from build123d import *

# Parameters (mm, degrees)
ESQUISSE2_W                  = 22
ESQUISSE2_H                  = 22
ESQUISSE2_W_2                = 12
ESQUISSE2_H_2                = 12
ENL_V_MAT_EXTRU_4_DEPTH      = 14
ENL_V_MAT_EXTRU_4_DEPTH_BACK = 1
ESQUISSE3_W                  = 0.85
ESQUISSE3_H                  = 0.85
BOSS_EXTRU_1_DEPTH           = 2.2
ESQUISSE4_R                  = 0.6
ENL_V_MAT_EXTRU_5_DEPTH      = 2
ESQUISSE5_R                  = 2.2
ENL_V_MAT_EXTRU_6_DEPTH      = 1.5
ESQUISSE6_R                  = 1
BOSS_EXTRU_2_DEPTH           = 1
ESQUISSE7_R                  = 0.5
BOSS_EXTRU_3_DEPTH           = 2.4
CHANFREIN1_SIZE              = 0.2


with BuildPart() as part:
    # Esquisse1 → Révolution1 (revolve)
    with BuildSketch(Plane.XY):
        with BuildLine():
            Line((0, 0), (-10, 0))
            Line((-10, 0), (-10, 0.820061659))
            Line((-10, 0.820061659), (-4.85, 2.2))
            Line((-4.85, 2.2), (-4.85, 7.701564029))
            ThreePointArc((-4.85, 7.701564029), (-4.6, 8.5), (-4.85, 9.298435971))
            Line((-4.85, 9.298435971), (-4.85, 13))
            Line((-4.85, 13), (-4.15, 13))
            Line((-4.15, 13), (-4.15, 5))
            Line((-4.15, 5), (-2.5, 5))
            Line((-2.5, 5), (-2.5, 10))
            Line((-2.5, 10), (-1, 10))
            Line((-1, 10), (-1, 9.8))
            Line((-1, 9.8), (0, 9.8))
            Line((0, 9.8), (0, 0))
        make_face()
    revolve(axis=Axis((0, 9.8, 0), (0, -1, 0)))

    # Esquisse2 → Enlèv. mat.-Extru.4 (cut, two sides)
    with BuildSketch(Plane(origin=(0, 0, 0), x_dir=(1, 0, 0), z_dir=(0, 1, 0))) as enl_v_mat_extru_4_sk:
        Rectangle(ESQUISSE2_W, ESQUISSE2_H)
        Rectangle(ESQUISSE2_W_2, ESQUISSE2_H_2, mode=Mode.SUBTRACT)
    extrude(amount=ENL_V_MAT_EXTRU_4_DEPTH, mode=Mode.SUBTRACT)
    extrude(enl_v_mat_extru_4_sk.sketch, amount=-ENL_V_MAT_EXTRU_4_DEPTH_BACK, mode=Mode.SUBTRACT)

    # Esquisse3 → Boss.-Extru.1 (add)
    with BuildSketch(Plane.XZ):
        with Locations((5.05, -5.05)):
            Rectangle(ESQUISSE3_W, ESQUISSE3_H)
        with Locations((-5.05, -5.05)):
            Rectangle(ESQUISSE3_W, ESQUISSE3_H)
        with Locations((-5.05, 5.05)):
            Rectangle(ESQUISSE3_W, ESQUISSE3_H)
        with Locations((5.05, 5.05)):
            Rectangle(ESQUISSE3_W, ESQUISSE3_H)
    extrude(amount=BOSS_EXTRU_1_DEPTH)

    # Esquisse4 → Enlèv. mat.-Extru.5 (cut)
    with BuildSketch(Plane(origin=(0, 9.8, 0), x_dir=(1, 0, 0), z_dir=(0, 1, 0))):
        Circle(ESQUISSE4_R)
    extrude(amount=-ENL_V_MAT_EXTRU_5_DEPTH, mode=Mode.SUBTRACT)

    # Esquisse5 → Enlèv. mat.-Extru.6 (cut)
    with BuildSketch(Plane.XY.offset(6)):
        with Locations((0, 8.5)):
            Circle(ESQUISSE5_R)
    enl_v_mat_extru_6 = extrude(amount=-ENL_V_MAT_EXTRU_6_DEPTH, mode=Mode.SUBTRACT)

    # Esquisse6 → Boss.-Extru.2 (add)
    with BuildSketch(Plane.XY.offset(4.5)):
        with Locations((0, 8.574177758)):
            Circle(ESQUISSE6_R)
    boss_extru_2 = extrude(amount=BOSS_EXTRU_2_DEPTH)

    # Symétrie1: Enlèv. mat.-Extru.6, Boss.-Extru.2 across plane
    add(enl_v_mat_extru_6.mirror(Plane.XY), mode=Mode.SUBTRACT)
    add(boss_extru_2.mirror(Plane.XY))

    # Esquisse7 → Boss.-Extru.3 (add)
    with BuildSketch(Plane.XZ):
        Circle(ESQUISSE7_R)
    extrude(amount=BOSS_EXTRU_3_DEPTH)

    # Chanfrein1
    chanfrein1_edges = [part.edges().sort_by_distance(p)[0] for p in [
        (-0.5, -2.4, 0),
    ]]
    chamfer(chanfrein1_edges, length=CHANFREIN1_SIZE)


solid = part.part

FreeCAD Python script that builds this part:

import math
import FreeCAD as App
import Part
import Sketcher
from FreeCAD import Vector
Q = App.Units.Quantity


def edges_at(feature, points):
    """Names of the edges that pass closest to the given points."""
    edges = feature.Shape.Edges
    near = lambda p: min(range(len(edges)), key=lambda i: edges[i].distToShape(Part.Vertex(*p))[0])
    return sorted({f"Edge{near(p) + 1}" for p in points})

doc = App.newDocument("Part")
body = doc.addObject("PartDesign::Body", "Body")

sketch1 = doc.addObject("Sketcher::SketchObject", "Sketch")
body.addObject(sketch1)
sketch1.AttachmentSupport = (doc.XY_Plane, [""])
sketch1.MapMode = "FlatFace"
sketch1.addGeometry([
    Part.LineSegment(Vector(-10, 0, 0), Vector(0, 0, 0)),
    Part.LineSegment(Vector(0, 0, 0), Vector(0, 9.8, 0)),
    Part.LineSegment(Vector(0, 9.8, 0), Vector(-1, 9.8, 0)),
    Part.LineSegment(Vector(-1, 9.8, 0), Vector(-1, 10, 0)),
    Part.LineSegment(Vector(-1, 10, 0), Vector(-2.5, 10, 0)),
    Part.LineSegment(Vector(-2.5, 10, 0), Vector(-2.5, 5, 0)),
    Part.LineSegment(Vector(-2.5, 5, 0), Vector(-4.15, 5, 0)),
    Part.LineSegment(Vector(-4.15, 5, 0), Vector(-4.15, 13, 0)),
    Part.LineSegment(Vector(-4.15, 13, 0), Vector(-4.85, 13, 0)),
    Part.LineSegment(Vector(-4.85, 13, 0), Vector(-4.85, 9.3, 0)),
    Part.ArcOfCircle(Part.Circle(Vector(-6, 8.5, 0), Vector(0, 0, 1), 1.4), math.radians(-35), math.radians(35)),
    Part.LineSegment(Vector(-4.85, 7.7, 0), Vector(-4.85, 2.2, 0)),
    Part.LineSegment(Vector(-4.85, 2.2, 0), Vector(-10, 0.82, 0)),
    Part.LineSegment(Vector(-10, 0.82, 0), Vector(-10, 0, 0)),
], False)
sketch1.addConstraint([
    Sketcher.Constraint("Coincident", 0, 2, 1, 1),
    Sketcher.Constraint("Coincident", 1, 2, 2, 1),
    Sketcher.Constraint("Coincident", 2, 2, 3, 1),
    Sketcher.Constraint("Coincident", 3, 2, 4, 1),
    Sketcher.Constraint("Coincident", 4, 2, 5, 1),
    Sketcher.Constraint("Coincident", 5, 2, 6, 1),
    Sketcher.Constraint("Coincident", 6, 2, 7, 1),
    Sketcher.Constraint("Coincident", 7, 2, 8, 1),
    Sketcher.Constraint("Coincident", 8, 2, 9, 1),
    Sketcher.Constraint("Coincident", 9, 2, 10, 2),
    Sketcher.Constraint("Coincident", 10, 1, 11, 1),
    Sketcher.Constraint("Coincident", 11, 2, 12, 1),
    Sketcher.Constraint("Coincident", 12, 2, 13, 1),
    Sketcher.Constraint("Coincident", 13, 2, 0, 1),
    Sketcher.Constraint("Horizontal", 0),
    Sketcher.Constraint("Vertical", 1),
    Sketcher.Constraint("Horizontal", 2),
    Sketcher.Constraint("Vertical", 3),
    Sketcher.Constraint("Horizontal", 4),
    Sketcher.Constraint("Vertical", 5),
    Sketcher.Constraint("Horizontal", 6),
    Sketcher.Constraint("Vertical", 7),
    Sketcher.Constraint("Horizontal", 8),
    Sketcher.Constraint("Vertical", 9),
    Sketcher.Constraint("Vertical", 11),
    Sketcher.Constraint("Vertical", 13),
    Sketcher.Constraint("Coincident", 0, 2, -1, 1),
    Sketcher.Constraint("Vertical", 9, 2, 10, 1),
    Sketcher.Constraint("Radius", 10, 1.4),
    Sketcher.Constraint("DistanceX", 0, 1, 0, 2, 10.0),
    Sketcher.Constraint("DistanceX", 2, 2, 2, 1, 1.0),
    Sketcher.Constraint("DistanceY", 5, 2, 5, 1, 5.0),
    Sketcher.Constraint("DistanceY", 7, 1, 7, 2, 8.0),
    Sketcher.Constraint("Angle", 12, Q("-165 deg")),
    Sketcher.Constraint("DistanceX", 4, 2, 4, 1, 1.5),
    Sketcher.Constraint("DistanceX", 8, 2, 8, 1, 0.7),
    Sketcher.Constraint("DistanceY", 1, 1, 1, 2, 9.8),
    Sketcher.Constraint("DistanceY", 3, 1, 3, 2, 0.2),
    Sketcher.Constraint("DistanceX", 10, 3, -1, 1, 6.0),
    Sketcher.Constraint("DistanceX", 6, 2, 6, 1, 1.65),
    Sketcher.Constraint("DistanceY", -1, 1, 10, 3, 8.5),
    Sketcher.Constraint("DistanceY", -1, 1, 11, 2, 2.2),
])
revolution = doc.addObject("PartDesign::Revolution", "Revolution")
body.addObject(revolution)
revolution.Profile = sketch1
revolution.ReferenceAxis = (sketch1, ["V_Axis"])
revolution.Angle = 360

sketch2 = doc.addObject("Sketcher::SketchObject", "Sketch001")
body.addObject(sketch2)
sketch2.AttachmentSupport = (doc.XZ_Plane, [""])
sketch2.MapMode = "FlatFace"
sketch2.addGeometry([
    Part.LineSegment(Vector(-11, -11, 0), Vector(-11, 11, 0)),
    Part.LineSegment(Vector(-11, 11, 0), Vector(11, 11, 0)),
    Part.LineSegment(Vector(11, 11, 0), Vector(11, -11, 0)),
    Part.LineSegment(Vector(11, -11, 0), Vector(-11, -11, 0)),
    Part.LineSegment(Vector(6, 6, 0), Vector(-6, 6, 0)),
    Part.LineSegment(Vector(-6, 6, 0), Vector(-6, -6, 0)),
    Part.LineSegment(Vector(-6, -6, 0), Vector(6, -6, 0)),
    Part.LineSegment(Vector(6, -6, 0), Vector(6, 6, 0)),
], False)
sketch2.addConstraint([
    Sketcher.Constraint("Coincident", 0, 2, 1, 1),
    Sketcher.Constraint("Coincident", 1, 2, 2, 1),
    Sketcher.Constraint("Coincident", 2, 2, 3, 1),
    Sketcher.Constraint("Coincident", 3, 2, 0, 1),
    Sketcher.Constraint("Coincident", 4, 2, 5, 1),
    Sketcher.Constraint("Coincident", 5, 2, 6, 1),
    Sketcher.Constraint("Coincident", 6, 2, 7, 1),
    Sketcher.Constraint("Coincident", 7, 2, 4, 1),
    Sketcher.Constraint("Vertical", 0),
    Sketcher.Constraint("Horizontal", 1),
    Sketcher.Constraint("Vertical", 2),
    Sketcher.Constraint("Horizontal", 3),
    Sketcher.Constraint("Horizontal", 4),
    Sketcher.Constraint("Vertical", 5),
    Sketcher.Constraint("Horizontal", 6),
    Sketcher.Constraint("Vertical", 7),
    Sketcher.Constraint("Symmetric", 0, 2, 2, 2, -1, 1),
    Sketcher.Constraint("Symmetric", 4, 2, 6, 2, -1, 1),
    Sketcher.Constraint("Equal", 3, 0),
    Sketcher.Constraint("Equal", 6, 5),
    Sketcher.Constraint("DistanceX", 1, 1, 1, 2, 22.0),
    Sketcher.Constraint("DistanceX", 4, 2, 4, 1, 12.0),
])
pocket1 = doc.addObject("PartDesign::Pocket", "Pocket")
body.addObject(pocket1)
pocket1.Profile = sketch2
pocket1.Type = "ThroughAll"
pocket1.Midplane = True

sketch3 = doc.addObject("Sketcher::SketchObject", "Sketch002")
body.addObject(sketch3)
sketch3.AttachmentSupport = (doc.XZ_Plane, [""])
sketch3.MapMode = "FlatFace"
sketch3.addGeometry([
    Part.LineSegment(Vector(4.6, -4.6, 0), Vector(4.6, -5.5, 0)),
    Part.LineSegment(Vector(4.6, -5.5, 0), Vector(5.5, -5.5, 0)),
    Part.LineSegment(Vector(5.5, -5.5, 0), Vector(5.5, -4.6, 0)),
    Part.LineSegment(Vector(5.5, -4.6, 0), Vector(4.6, -4.6, 0)),
    Part.LineSegment(Vector(-5.5, -4.6, 0), Vector(-5.5, -5.5, 0)),
    Part.LineSegment(Vector(-5.5, -5.5, 0), Vector(-4.6, -5.5, 0)),
    Part.LineSegment(Vector(-4.6, -5.5, 0), Vector(-4.6, -4.6, 0)),
    Part.LineSegment(Vector(-4.6, -4.6, 0), Vector(-5.5, -4.6, 0)),
    Part.LineSegment(Vector(-5.5, 5.5, 0), Vector(-5.5, 4.6, 0)),
    Part.LineSegment(Vector(-5.5, 4.6, 0), Vector(-4.6, 4.6, 0)),
    Part.LineSegment(Vector(-4.6, 4.6, 0), Vector(-4.6, 5.5, 0)),
    Part.LineSegment(Vector(-4.6, 5.5, 0), Vector(-5.5, 5.5, 0)),
    Part.LineSegment(Vector(4.6, 5.5, 0), Vector(4.6, 4.6, 0)),
    Part.LineSegment(Vector(4.6, 4.6, 0), Vector(5.5, 4.6, 0)),
    Part.LineSegment(Vector(5.5, 4.6, 0), Vector(5.5, 5.5, 0)),
    Part.LineSegment(Vector(5.5, 5.5, 0), Vector(4.6, 5.5, 0)),
], False)
sketch3.addConstraint([
    Sketcher.Constraint("Coincident", 0, 2, 1, 1),
    Sketcher.Constraint("Coincident", 1, 2, 2, 1),
    Sketcher.Constraint("Coincident", 2, 2, 3, 1),
    Sketcher.Constraint("Coincident", 3, 2, 0, 1),
    Sketcher.Constraint("Coincident", 4, 2, 5, 1),
    Sketcher.Constraint("Coincident", 5, 2, 6, 1),
    Sketcher.Constraint("Coincident", 6, 2, 7, 1),
    Sketcher.Constraint("Coincident", 7, 2, 4, 1),
    Sketcher.Constraint("Coincident", 8, 2, 9, 1),
    Sketcher.Constraint("Coincident", 9, 2, 10, 1),
    Sketcher.Constraint("Coincident", 10, 2, 11, 1),
    Sketcher.Constraint("Coincident", 11, 2, 8, 1),
    Sketcher.Constraint("Coincident", 12, 2, 13, 1),
    Sketcher.Constraint("Coincident", 13, 2, 14, 1),
    Sketcher.Constraint("Coincident", 14, 2, 15, 1),
    Sketcher.Constraint("Coincident", 15, 2, 12, 1),
    Sketcher.Constraint("Vertical", 0),
    Sketcher.Constraint("Horizontal", 1),
    Sketcher.Constraint("Vertical", 2),
    Sketcher.Constraint("Horizontal", 3),
    Sketcher.Constraint("Vertical", 4),
    Sketcher.Constraint("Horizontal", 5),
    Sketcher.Constraint("Vertical", 6),
    Sketcher.Constraint("Horizontal", 7),
    Sketcher.Constraint("Vertical", 8),
    Sketcher.Constraint("Horizontal", 9),
    Sketcher.Constraint("Vertical", 10),
    Sketcher.Constraint("Horizontal", 11),
    Sketcher.Constraint("Vertical", 12),
    Sketcher.Constraint("Horizontal", 13),
    Sketcher.Constraint("Vertical", 14),
    Sketcher.Constraint("Horizontal", 15),
    Sketcher.Constraint("Symmetric", 2, 2, 8, 2, -1, 1),
    Sketcher.Constraint("Symmetric", 0, 2, 10, 2, -1, 1),
    Sketcher.Constraint("Symmetric", 6, 2, 12, 2, -1, 1),
    Sketcher.Constraint("Symmetric", 4, 2, 14, 2, -1, 1),
    Sketcher.Constraint("Symmetric", 1, 2, 4, 2, -2),
    Sketcher.Constraint("Symmetric", 3, 2, 6, 2, -2),
    Sketcher.Constraint("Equal", 15, 0),
    Sketcher.Constraint("DistanceX", 1, 1, 1, 2, 0.85),
    Sketcher.Constraint("DistanceX", 4, 2, 0, 2, 10.1),
    Sketcher.Constraint("DistanceY", 4, 2, 8, 2, 10.1),
])
pad1 = doc.addObject("PartDesign::Pad", "Pad")
body.addObject(pad1)
pad1.Profile = sketch3
pad1.Length = 2.2

sketch4 = doc.addObject("Sketcher::SketchObject", "Sketch003")
body.addObject(sketch4)
sketch4.AttachmentSupport = (doc.XZ_Plane, [""])
sketch4.MapMode = "FlatFace"
sketch4.AttachmentOffset = App.Placement(Vector(0, 0, -9.8), App.Rotation())
sketch4.addGeometry(Part.Circle(Vector(0, 0, 0), Vector(0, 0, 1), 0.6), False)
sketch4.addConstraint([
    Sketcher.Constraint("Coincident", 0, 3, -1, 1),
    Sketcher.Constraint("Diameter", 0, 1.2),
])
pocket2 = doc.addObject("PartDesign::Pocket", "Pocket001")
body.addObject(pocket2)
pocket2.Profile = sketch4
pocket2.Length = 2
pocket2.Reversed = True

sketch5 = doc.addObject("Sketcher::SketchObject", "Sketch004")
body.addObject(sketch5)
sketch5.AttachmentSupport = (doc.XY_Plane, [""])
sketch5.MapMode = "FlatFace"
sketch5.AttachmentOffset = App.Placement(Vector(0, 0, 6), App.Rotation())
sketch5.addGeometry(Part.Circle(Vector(0, 8.5, 0), Vector(0, 0, 1), 2.2), False)
sketch5.addConstraint([
    Sketcher.Constraint("PointOnObject", 0, 3, -2),
    Sketcher.Constraint("Diameter", 0, 4.4),
    Sketcher.Constraint("DistanceY", -1, 1, 0, 3, 8.5),
])
pocket3 = doc.addObject("PartDesign::Pocket", "Pocket002")
body.addObject(pocket3)
pocket3.Profile = sketch5
pocket3.Length = 1.5

sketch6 = doc.addObject("Sketcher::SketchObject", "Sketch005")
body.addObject(sketch6)
sketch6.AttachmentSupport = (doc.XY_Plane, [""])
sketch6.MapMode = "FlatFace"
sketch6.AttachmentOffset = App.Placement(Vector(0, 0, 4.5), App.Rotation())
sketch6.addGeometry(Part.Circle(Vector(0, 8.6, 0), Vector(0, 0, 1), 1), False)
sketch6.addConstraint([
    Sketcher.Constraint("PointOnObject", 0, 3, -2),
    Sketcher.Constraint("Diameter", 0, 2.0),
    Sketcher.Constraint("DistanceY", -1, 1, 0, 3, 8.574178),
])
pad2 = doc.addObject("PartDesign::Pad", "Pad001")
body.addObject(pad2)
pad2.Profile = sketch6
pad2.Length = 1
doc.recompute()

mirrored = doc.addObject("PartDesign::Mirrored", "Mirrored")
body.addObject(mirrored)
mirrored.Originals = [pocket3, pad2]
mirrored.MirrorPlane = (doc.XY_Plane, [""])
body.Tip = mirrored

sketch7 = doc.addObject("Sketcher::SketchObject", "Sketch006")
body.addObject(sketch7)
sketch7.AttachmentSupport = (doc.XZ_Plane, [""])
sketch7.MapMode = "FlatFace"
sketch7.addGeometry(Part.Circle(Vector(0, 0, 0), Vector(0, 0, 1), 0.5), False)
sketch7.addConstraint([
    Sketcher.Constraint("Coincident", 0, 3, -1, 1),
    Sketcher.Constraint("Diameter", 0, 1.0),
])
pad3 = doc.addObject("PartDesign::Pad", "Pad002")
body.addObject(pad3)
pad3.Profile = sketch7
pad3.Length = 2.4
doc.recompute()

chamfer = doc.addObject("PartDesign::Chamfer", "Chamfer")
body.addObject(chamfer)
chamfer.Base = (pad3, edges_at(pad3, [(-0.5, -2.4, 0)]))
chamfer.Size = 0.2

doc.recompute()
